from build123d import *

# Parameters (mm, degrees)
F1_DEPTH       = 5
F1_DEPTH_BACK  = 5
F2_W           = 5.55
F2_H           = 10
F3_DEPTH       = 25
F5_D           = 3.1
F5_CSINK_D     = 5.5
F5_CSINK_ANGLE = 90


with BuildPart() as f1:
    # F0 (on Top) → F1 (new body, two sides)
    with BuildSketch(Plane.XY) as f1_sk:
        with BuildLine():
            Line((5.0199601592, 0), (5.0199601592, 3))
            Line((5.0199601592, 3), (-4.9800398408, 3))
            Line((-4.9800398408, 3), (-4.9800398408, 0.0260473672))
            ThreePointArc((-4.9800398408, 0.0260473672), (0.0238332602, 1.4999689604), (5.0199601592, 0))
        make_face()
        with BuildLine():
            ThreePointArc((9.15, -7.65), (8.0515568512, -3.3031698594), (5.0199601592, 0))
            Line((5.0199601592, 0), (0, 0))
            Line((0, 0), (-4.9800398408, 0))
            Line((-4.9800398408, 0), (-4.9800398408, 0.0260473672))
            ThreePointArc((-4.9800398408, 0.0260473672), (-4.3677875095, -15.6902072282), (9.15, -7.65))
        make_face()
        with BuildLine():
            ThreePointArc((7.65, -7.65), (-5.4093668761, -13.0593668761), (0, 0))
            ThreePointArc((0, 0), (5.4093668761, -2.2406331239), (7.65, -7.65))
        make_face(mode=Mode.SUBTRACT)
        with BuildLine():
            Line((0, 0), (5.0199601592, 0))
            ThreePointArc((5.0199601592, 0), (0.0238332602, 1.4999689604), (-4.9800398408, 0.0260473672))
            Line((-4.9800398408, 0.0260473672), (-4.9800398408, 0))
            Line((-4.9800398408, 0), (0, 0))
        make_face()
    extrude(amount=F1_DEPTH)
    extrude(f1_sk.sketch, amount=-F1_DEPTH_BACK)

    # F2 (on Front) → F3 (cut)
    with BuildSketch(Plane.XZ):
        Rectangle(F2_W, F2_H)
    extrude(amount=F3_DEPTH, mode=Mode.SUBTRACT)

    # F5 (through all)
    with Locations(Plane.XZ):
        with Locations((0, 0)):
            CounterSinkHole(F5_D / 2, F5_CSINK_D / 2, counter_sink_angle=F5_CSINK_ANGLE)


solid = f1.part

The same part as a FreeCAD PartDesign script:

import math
import FreeCAD as App
import Part
import Sketcher


def add_polygon(sketch, points):
    """Adds a closed chain of lines whose ends are joined by coincident constraints."""
    first, n = sketch.GeometryCount, len(points)
    for a, b in zip(points, points[1:] + points[:1]):
        sketch.addGeometry(Part.LineSegment(App.Vector(*a, 0), App.Vector(*b, 0)), False)
    for i in range(n):
        sketch.addConstraint(Sketcher.Constraint("Coincident", first + i, 2, first + (i + 1) % n, 1))

doc = App.newDocument("Part")
body = doc.addObject("PartDesign::Body", "Body")

# Sketch on XY plane
sketch1 = body.newObject("Sketcher::SketchObject", "Sketch")
sketch1.AttachmentSupport = (doc.getObject("XY_Plane"), [""])
sketch1.MapMode = "FlatFace"
sketch1.addGeometry([
    Part.LineSegment(App.Vector(5, 0, 0), App.Vector(5, 3, 0)),  # 0
    Part.LineSegment(App.Vector(5, 3, 0), App.Vector(-5, 3, 0)),  # 1
    Part.LineSegment(App.Vector(-5, 3, 0), App.Vector(-5, 0, 0)),  # 2
    Part.ArcOfCircle(Part.Circle(App.Vector(0, -7.7, 0), App.Vector(0, 0, 1), 9.2), math.radians(123), math.radians(360)),  # 3
    Part.ArcOfCircle(Part.Circle(App.Vector(0, -7.7, 0), App.Vector(0, 0, 1), 9.2), math.radians(0), math.radians(57)),  # 4
    Part.ArcOfCircle(Part.Circle(App.Vector(0, -7.7, 0), App.Vector(0, 0, 1), 7.7), math.radians(90), math.radians(360)),  # 5
    Part.ArcOfCircle(Part.Circle(App.Vector(0, -7.7, 0), App.Vector(0, 0, 1), 7.7), math.radians(0), math.radians(90)),  # 6
], False)
sketch1.addConstraint([
    Sketcher.Constraint("Coincident", 0, 2, 1, 1),
    Sketcher.Constraint("Coincident", 1, 2, 2, 1),
    Sketcher.Constraint("Coincident", 2, 2, 3, 1),
    Sketcher.Constraint("Tangent", 3, 2, 4, 1),
    Sketcher.Constraint("Coincident", 4, 2, 0, 1),
    Sketcher.Constraint("Tangent", 5, 1, 6, 2),
    Sketcher.Constraint("Coincident", 6, 1, 5, 2),
    Sketcher.Constraint("Vertical", 0),
    Sketcher.Constraint("Horizontal", 1),
    Sketcher.Constraint("Vertical", 2),
    Sketcher.Constraint("Coincident", 5, 1, -1, 1),
    Sketcher.Constraint("Coincident", 5, 3, 3, 3),
    Sketcher.Constraint("Equal", 3, 4),
    Sketcher.Constraint("PointOnObject", 3, 3, -2),
    Sketcher.Constraint("PointOnObject", 4, 2, -1),
    Sketcher.Constraint("Horizontal", 6, 3, 3, 2),
    Sketcher.Constraint("Horizontal", 3, 2, 6, 1),
    Sketcher.Constraint("DistanceX", 1, 2, 1, 1, 10.0),
    Sketcher.Constraint("DistanceY", 0, 1, 0, 2, 3.0),
    Sketcher.Constraint("Radius", 3, 9.15),
    Sketcher.Constraint("Radius", 5, 7.65),
])
pad1 = body.newObject("PartDesign::Pad", "Pad")
pad1.Profile = sketch1
pad1.Type = "TwoLengths"
pad1.Length = 5
pad1.Length2 = 5

# Sketch on XZ plane
sketch2 = body.newObject("Sketcher::SketchObject", "Sketch001")
sketch2.AttachmentSupport = (doc.getObject("XZ_Plane"), [""])
sketch2.MapMode = "FlatFace"
add_polygon(sketch2, [(-3, 5), (-3, -5), (3, -5), (3, 5)])  # lines 0-3
sketch2.addConstraint([
    Sketcher.Constraint("Vertical", 0),
    Sketcher.Constraint("Horizontal", 1),
    Sketcher.Constraint("Vertical", 2),
    Sketcher.Constraint("Horizontal", 3),
    Sketcher.Constraint("Symmetric", 0, 2, 2, 2, -1, 1),
    Sketcher.Constraint("DistanceY", 0, 2, 0, 1, 10.0),
    Sketcher.Constraint("DistanceX", 1, 1, 1, 2, 5.55),
])
pocket1 = body.newObject("PartDesign::Pocket", "Pocket")
pocket1.Profile = sketch2
pocket1.Length = 25
pocket1.Reversed = True

# Sketch on XZ plane
sketch3 = body.newObject("Sketcher::SketchObject", "Sketch002")
sketch3.AttachmentSupport = (doc.getObject("XZ_Plane"), [""])
sketch3.MapMode = "FlatFace"
sketch3.addGeometry(Part.Circle(App.Vector(0, 0, 0), App.Vector(0, 0, 1), 1.6), False)
sketch3.addConstraint([
    Sketcher.Constraint("Coincident", 0, 3, -1, 1),
    Sketcher.Constraint("Diameter", 0, 3.1),
])
doc.recompute()
hole = body.newObject("PartDesign::Hole", "Hole")
hole.Profile = sketch3
hole.ThreadType = "None"
hole.Diameter = 3.1
hole.DepthType = "ThroughAll"
hole.HoleCutType = "Countersink"
hole.HoleCutDiameter = 5.5
hole.HoleCutCountersinkAngle = 90

doc.recompute()
